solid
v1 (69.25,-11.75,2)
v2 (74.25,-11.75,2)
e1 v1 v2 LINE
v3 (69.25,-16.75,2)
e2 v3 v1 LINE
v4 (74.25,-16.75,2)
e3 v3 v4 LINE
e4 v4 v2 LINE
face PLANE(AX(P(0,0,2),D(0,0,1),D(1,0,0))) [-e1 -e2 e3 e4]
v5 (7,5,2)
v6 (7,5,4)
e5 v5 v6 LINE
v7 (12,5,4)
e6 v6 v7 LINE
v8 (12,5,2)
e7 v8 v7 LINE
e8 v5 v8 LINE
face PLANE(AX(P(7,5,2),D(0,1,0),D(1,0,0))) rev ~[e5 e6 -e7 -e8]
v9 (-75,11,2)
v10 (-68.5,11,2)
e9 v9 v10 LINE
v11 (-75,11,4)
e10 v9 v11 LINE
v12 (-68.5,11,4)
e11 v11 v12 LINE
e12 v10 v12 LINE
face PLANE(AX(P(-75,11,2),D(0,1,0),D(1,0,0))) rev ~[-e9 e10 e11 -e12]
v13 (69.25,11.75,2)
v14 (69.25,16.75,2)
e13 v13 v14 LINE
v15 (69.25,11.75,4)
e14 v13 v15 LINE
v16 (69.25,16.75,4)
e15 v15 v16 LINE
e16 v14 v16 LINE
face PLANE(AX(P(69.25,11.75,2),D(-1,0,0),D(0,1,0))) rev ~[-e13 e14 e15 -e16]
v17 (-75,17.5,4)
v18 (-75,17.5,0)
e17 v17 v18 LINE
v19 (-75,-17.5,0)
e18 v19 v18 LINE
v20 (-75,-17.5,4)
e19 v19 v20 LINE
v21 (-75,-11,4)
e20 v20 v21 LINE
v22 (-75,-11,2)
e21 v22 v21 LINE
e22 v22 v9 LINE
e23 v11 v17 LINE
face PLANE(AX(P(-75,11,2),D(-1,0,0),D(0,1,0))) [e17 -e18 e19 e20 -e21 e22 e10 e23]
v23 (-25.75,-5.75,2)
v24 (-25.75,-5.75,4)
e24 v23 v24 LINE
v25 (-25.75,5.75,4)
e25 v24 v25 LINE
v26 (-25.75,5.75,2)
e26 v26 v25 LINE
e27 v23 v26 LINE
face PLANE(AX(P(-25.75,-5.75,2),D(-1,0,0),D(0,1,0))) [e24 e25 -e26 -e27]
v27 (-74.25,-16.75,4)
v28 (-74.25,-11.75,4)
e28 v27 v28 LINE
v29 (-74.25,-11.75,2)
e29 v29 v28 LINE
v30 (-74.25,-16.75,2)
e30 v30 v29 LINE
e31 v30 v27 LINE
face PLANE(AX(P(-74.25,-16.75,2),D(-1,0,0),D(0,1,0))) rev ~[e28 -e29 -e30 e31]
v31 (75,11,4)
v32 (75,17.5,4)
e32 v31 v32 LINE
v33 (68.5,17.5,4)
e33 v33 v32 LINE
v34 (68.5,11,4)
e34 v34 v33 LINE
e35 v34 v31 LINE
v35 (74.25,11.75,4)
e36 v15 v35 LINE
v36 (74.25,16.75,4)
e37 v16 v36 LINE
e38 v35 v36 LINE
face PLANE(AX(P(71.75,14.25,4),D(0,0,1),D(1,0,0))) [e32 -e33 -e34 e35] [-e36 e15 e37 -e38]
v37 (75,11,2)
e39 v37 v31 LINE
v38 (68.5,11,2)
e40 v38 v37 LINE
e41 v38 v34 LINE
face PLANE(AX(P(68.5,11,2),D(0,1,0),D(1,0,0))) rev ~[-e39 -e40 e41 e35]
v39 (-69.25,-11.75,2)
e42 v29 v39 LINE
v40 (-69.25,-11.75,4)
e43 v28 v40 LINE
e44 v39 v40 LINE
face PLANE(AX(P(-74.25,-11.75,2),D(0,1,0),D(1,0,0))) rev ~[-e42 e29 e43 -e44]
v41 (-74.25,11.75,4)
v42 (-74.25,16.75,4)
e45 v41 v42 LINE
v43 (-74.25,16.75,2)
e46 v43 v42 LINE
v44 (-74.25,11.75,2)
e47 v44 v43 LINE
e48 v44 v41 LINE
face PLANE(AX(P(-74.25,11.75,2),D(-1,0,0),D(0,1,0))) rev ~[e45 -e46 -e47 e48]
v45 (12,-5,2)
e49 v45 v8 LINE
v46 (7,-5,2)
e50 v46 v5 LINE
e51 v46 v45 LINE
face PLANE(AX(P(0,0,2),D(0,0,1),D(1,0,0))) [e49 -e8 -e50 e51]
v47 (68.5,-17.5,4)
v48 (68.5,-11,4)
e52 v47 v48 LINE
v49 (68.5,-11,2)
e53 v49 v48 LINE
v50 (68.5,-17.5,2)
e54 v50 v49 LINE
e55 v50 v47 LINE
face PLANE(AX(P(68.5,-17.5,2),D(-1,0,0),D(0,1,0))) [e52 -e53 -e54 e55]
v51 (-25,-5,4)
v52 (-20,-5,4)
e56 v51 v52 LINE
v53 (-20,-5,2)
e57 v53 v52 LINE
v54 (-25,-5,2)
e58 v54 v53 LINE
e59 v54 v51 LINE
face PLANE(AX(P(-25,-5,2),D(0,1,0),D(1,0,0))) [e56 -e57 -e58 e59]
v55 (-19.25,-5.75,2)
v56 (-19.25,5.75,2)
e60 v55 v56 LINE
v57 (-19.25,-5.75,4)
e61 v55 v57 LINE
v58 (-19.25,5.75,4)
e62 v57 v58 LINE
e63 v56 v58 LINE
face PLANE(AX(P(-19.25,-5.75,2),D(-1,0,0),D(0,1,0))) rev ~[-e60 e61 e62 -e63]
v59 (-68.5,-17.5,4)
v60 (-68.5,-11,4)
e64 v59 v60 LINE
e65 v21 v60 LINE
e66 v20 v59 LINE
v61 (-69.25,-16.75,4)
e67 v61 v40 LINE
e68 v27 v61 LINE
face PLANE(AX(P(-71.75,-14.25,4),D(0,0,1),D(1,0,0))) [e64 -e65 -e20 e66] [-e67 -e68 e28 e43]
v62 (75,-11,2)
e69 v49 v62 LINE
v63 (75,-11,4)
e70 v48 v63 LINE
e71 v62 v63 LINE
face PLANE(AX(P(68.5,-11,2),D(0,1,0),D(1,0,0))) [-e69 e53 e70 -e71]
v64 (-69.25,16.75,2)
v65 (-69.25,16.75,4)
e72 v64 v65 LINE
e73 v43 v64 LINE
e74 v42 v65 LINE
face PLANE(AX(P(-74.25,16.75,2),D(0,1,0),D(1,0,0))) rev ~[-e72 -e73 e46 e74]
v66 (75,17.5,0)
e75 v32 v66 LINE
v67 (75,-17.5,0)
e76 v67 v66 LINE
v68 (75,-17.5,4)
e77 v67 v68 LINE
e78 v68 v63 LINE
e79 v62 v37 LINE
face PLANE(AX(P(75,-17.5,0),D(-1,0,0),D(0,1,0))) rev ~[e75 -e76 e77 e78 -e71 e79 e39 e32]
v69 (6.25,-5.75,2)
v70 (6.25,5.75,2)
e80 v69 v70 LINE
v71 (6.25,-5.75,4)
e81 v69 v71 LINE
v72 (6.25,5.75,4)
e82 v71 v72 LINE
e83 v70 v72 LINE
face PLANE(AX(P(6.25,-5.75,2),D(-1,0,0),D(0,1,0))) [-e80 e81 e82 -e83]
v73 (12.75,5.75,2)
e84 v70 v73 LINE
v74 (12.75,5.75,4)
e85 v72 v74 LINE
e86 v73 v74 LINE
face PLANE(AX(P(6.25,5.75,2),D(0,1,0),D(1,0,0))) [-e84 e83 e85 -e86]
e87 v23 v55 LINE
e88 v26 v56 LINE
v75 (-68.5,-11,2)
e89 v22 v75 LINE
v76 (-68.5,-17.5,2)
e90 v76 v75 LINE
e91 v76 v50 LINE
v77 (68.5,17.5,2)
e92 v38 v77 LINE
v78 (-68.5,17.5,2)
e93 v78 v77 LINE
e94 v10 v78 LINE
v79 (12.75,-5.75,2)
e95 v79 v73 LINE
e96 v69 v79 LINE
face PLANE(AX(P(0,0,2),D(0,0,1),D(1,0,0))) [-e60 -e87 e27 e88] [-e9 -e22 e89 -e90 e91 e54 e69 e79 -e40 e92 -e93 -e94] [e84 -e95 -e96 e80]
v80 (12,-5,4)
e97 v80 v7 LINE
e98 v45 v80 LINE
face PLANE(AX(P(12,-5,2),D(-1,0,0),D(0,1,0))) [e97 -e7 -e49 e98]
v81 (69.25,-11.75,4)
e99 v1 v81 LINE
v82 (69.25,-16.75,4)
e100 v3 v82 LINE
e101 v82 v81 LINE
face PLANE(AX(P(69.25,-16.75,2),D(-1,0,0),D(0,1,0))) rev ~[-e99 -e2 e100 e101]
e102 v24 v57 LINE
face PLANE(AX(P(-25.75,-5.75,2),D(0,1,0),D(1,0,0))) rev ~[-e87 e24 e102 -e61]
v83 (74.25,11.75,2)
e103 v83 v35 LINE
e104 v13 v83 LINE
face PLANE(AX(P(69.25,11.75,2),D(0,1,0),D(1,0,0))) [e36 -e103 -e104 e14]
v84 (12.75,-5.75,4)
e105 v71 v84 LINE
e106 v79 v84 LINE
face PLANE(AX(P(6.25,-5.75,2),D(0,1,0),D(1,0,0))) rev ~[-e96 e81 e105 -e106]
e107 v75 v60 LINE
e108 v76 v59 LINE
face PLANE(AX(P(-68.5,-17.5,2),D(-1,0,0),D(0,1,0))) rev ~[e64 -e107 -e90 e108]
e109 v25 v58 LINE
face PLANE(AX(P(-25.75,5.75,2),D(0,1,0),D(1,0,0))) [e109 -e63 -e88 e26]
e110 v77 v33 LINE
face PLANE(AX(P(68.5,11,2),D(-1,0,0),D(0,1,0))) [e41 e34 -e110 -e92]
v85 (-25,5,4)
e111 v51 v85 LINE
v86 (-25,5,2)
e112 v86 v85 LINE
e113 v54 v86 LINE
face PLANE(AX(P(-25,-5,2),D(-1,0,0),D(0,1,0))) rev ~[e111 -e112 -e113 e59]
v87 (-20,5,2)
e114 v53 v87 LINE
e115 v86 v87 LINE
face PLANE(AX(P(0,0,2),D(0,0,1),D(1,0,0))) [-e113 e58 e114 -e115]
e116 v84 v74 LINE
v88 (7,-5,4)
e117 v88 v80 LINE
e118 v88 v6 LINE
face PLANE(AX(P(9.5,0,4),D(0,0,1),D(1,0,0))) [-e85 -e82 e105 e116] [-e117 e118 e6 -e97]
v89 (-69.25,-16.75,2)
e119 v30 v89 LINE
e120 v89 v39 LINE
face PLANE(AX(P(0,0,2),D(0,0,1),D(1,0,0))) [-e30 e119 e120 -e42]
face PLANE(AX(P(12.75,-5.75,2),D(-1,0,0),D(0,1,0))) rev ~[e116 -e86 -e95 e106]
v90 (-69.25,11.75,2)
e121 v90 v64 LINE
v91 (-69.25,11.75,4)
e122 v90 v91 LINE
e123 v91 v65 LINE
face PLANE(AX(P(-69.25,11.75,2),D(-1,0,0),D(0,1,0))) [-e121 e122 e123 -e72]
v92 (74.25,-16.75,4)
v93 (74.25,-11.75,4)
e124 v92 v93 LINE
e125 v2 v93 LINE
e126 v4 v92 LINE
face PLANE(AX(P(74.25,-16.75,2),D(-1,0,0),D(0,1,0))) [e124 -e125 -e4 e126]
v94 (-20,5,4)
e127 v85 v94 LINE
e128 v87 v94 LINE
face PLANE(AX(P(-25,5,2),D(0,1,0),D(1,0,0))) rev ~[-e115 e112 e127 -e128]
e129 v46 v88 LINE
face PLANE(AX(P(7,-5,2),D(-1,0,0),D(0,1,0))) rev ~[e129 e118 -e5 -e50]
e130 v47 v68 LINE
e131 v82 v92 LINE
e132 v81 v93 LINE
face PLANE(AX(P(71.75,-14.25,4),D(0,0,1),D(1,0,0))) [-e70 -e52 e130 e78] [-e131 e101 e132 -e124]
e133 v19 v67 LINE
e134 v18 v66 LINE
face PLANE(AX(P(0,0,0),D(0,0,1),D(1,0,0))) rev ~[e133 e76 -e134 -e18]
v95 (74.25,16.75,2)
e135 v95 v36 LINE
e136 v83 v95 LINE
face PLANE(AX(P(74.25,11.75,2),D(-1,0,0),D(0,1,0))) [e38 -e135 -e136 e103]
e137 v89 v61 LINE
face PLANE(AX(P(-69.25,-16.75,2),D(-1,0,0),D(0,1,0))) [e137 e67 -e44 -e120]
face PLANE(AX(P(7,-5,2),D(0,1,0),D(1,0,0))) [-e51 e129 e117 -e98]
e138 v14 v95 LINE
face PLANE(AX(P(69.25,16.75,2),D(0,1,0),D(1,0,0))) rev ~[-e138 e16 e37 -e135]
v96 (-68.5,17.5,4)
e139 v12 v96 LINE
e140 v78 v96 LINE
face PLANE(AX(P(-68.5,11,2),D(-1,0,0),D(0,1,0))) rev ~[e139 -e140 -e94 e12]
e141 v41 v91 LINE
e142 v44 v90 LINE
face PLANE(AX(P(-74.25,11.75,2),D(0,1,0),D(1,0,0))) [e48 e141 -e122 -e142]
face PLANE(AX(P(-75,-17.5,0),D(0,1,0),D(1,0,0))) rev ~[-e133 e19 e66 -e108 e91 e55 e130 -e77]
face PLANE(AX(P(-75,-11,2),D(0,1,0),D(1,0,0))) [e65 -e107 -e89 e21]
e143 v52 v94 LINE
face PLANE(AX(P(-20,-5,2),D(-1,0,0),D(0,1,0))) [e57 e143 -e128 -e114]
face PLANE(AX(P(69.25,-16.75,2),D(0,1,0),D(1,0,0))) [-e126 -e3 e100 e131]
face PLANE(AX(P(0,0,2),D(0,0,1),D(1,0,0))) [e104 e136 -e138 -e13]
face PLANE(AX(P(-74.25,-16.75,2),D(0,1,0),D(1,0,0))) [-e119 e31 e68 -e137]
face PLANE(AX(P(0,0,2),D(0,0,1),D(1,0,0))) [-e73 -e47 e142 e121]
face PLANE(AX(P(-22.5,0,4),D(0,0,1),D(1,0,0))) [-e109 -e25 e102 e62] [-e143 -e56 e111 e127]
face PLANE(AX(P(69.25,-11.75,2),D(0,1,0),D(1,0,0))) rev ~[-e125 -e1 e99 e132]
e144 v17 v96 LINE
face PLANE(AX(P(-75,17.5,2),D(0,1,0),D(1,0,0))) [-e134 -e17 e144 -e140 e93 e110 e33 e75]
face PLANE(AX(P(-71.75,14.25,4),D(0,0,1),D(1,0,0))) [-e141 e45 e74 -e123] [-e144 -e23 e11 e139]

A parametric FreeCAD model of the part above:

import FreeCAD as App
import Part
import Sketcher
Q = App.Units.Quantity


def add_polygon(sketch, points):
    """Adds a closed chain of lines whose ends are joined by coincident constraints."""
    first, n = sketch.GeometryCount, len(points)
    for a, b in zip(points, points[1:] + points[:1]):
        sketch.addGeometry(Part.LineSegment(App.Vector(*a, 0), App.Vector(*b, 0)), False)
    for i in range(n):
        sketch.addConstraint(Sketcher.Constraint("Coincident", first + i, 2, first + (i + 1) % n, 1))

doc = App.newDocument("Part")
body = doc.addObject("PartDesign::Body", "Body")

# Sketch on XY plane
sketch1 = body.newObject("Sketcher::SketchObject", "Sketch")
sketch1.AttachmentSupport = (doc.getObject("XY_Plane"), [""])
sketch1.MapMode = "FlatFace"
add_polygon(sketch1, [(-75, 18), (-75, -18), (75, -18), (75, 18)])  # lines 0-3
sketch1.addConstraint([
    Sketcher.Constraint("Vertical", 0),
    Sketcher.Constraint("Horizontal", 1),
    Sketcher.Constraint("Vertical", 2),
    Sketcher.Constraint("Horizontal", 3),
    Sketcher.Constraint("Symmetric", 0, 2, 2, 2, -1, 1),
    Sketcher.Constraint("DistanceX", 1, 1, 1, 2, Q("150 mm")),
    Sketcher.Constraint("DistanceY", 0, 2, 0, 1, Q("35 mm")),
])
pad1 = body.newObject("PartDesign::Pad", "Pad")
pad1.Profile = sketch1
pad1.Length = 2

# Sketch on XY plane
sketch2 = body.newObject("Sketcher::SketchObject", "Sketch001")
sketch2.AttachmentSupport = (doc.getObject("XY_Plane"), [""])
sketch2.MapMode = "FlatFace"
sketch2.AttachmentOffset = App.Placement(App.Vector(0, 0, 2), App.Rotation())
add_polygon(sketch2, [(-26, 6), (-26, -6), (-19, -6), (-19, 6)])  # lines 0-3
add_polygon(sketch2, [(-20, -5), (-25, -5), (-25, 5), (-20, 5)])  # lines 4-7
add_polygon(sketch2, [(6, 6), (6, -6), (13, -6), (13, 6)])  # lines 8-11
add_polygon(sketch2, [(12, -5), (7, -5), (7, 5), (12, 5)])  # lines 12-15
sketch2.addConstraint([
    Sketcher.Constraint("Vertical", 0),
    Sketcher.Constraint("Horizontal", 1),
    Sketcher.Constraint("Vertical", 2),
    Sketcher.Constraint("Horizontal", 3),
    Sketcher.Constraint("Horizontal", 4),
    Sketcher.Constraint("Vertical", 5),
    Sketcher.Constraint("Horizontal", 6),
    Sketcher.Constraint("Vertical", 7),
    Sketcher.Constraint("Vertical", 8),
    Sketcher.Constraint("Horizontal", 9),
    Sketcher.Constraint("Vertical", 10),
    Sketcher.Constraint("Horizontal", 11),
    Sketcher.Constraint("Horizontal", 12),
    Sketcher.Constraint("Vertical", 13),
    Sketcher.Constraint("Horizontal", 14),
    Sketcher.Constraint("Vertical", 15),
    Sketcher.Constraint("Horizontal", 1, 2, 8, 2),
    Sketcher.Constraint("Horizontal", 3, 2, 10, 2),
    Sketcher.Constraint("Horizontal", 7, 2, 12, 2),
    Sketcher.Constraint("Horizontal", 6, 2, 13, 2),
    Sketcher.Constraint("Equal", 3, 9),
    Sketcher.Constraint("Equal", 6, 12),
    Sketcher.Constraint("DistanceX", 4, 2, 4, 1, Q("5 mm")),
    Sketcher.Constraint("DistanceY", 5, 1, 5, 2, Q("10 mm")),
    Sketcher.Constraint("DistanceX", 1, 1, 1, 2, Q("6.5 mm")),
    Sketcher.Constraint("DistanceY", 0, 2, 0, 1, Q("11.5 mm")),
    Sketcher.Constraint("DistanceX", 4, 2, -1, 1, Q("25 mm")),
    Sketcher.Constraint("DistanceY", 4, 2, -1, 1, Q("5 mm")),
    Sketcher.Constraint("DistanceX", -1, 1, 12, 2, Q("7 mm")),
    Sketcher.Constraint("DistanceX", 1, 2, 9, 2, Q("32 mm")),
    Sketcher.Constraint("DistanceX", 0, 2, -1, 1, Q("25.75 mm")),
    Sketcher.Constraint("DistanceY", 0, 2, -1, 1, Q("5.75 mm")),
])
pad2 = body.newObject("PartDesign::Pad", "Pad001")
pad2.Profile = sketch2
pad2.Length = 2

# Sketch on XY plane
sketch3 = body.newObject("Sketcher::SketchObject", "Sketch002")
sketch3.AttachmentSupport = (doc.getObject("XY_Plane"), [""])
sketch3.MapMode = "FlatFace"
sketch3.AttachmentOffset = App.Placement(App.Vector(0, 0, 2), App.Rotation())
add_polygon(sketch3, [(-75, 18), (-75, 11), (-68, 11), (-68, 18)])  # lines 0-3
add_polygon(sketch3, [(-69, 12), (-74, 12), (-74, 17), (-69, 17)])  # lines 4-7
add_polygon(sketch3, [(68, 18), (68, 11), (75, 11), (75, 18)])  # lines 8-11
add_polygon(sketch3, [(74, 12), (69, 12), (69, 17), (74, 17)])  # lines 12-15
add_polygon(sketch3, [(-75, -11), (-75, -18), (-68, -18), (-68, -11)])  # lines 16-19
add_polygon(sketch3, [(-69, -17), (-74, -17), (-74, -12), (-69, -12)])  # lines 20-23
add_polygon(sketch3, [(68, -11), (68, -18), (75, -18), (75, -11)])  # lines 24-27
add_polygon(sketch3, [(74, -17), (69, -17), (69, -12), (74, -12)])  # lines 28-31
sketch3.addConstraint([
    Sketcher.Constraint("Vertical", 0),
    Sketcher.Constraint("Horizontal", 1),
    Sketcher.Constraint("Vertical", 2),
    Sketcher.Constraint("Horizontal", 3),
    Sketcher.Constraint("Horizontal", 4),
    Sketcher.Constraint("Vertical", 5),
    Sketcher.Constraint("Horizontal", 6),
    Sketcher.Constraint("Vertical", 7),
    Sketcher.Constraint("Vertical", 8),
    Sketcher.Constraint("Horizontal", 9),
    Sketcher.Constraint("Vertical", 10),
    Sketcher.Constraint("Horizontal", 11),
    Sketcher.Constraint("Horizontal", 12),
    Sketcher.Constraint("Vertical", 13),
    Sketcher.Constraint("Horizontal", 14),
    Sketcher.Constraint("Vertical", 15),
    Sketcher.Constraint("Vertical", 16),
    Sketcher.Constraint("Horizontal", 17),
    Sketcher.Constraint("Vertical", 18),
    Sketcher.Constraint("Horizontal", 19),
    Sketcher.Constraint("Horizontal", 20),
    Sketcher.Constraint("Vertical", 21),
    Sketcher.Constraint("Horizontal", 22),
    Sketcher.Constraint("Vertical", 23),
    Sketcher.Constraint("Vertical", 24),
    Sketcher.Constraint("Horizontal", 25),
    Sketcher.Constraint("Vertical", 26),
    Sketcher.Constraint("Horizontal", 27),
    Sketcher.Constraint("Horizontal", 28),
    Sketcher.Constraint("Vertical", 29),
    Sketcher.Constraint("Horizontal", 30),
    Sketcher.Constraint("Vertical", 31),
    Sketcher.Constraint("Symmetric", 10, 2, 16, 2, -1, 1),
    Sketcher.Constraint("Symmetric", 8, 2, 18, 2, -1, 1),
    Sketcher.Constraint("Symmetric", 14, 2, 20, 2, -1, 1),
    Sketcher.Constraint("Symmetric", 12, 2, 22, 2, -1, 1),
    Sketcher.Constraint("Symmetric", 2, 2, 24, 2, -1, 1),
    Sketcher.Constraint("Symmetric", 0, 2, 26, 2, -1, 1),
    Sketcher.Constraint("Symmetric", 6, 2, 28, 2, -1, 1),
    Sketcher.Constraint("Symmetric", 4, 2, 30, 2, -1, 1),
    Sketcher.Constraint("Symmetric", 1, 2, 8, 2, -2),
    Sketcher.Constraint("Symmetric", 3, 2, 10, 2, -2),
    Sketcher.Constraint("Symmetric", 7, 2, 12, 2, -2),
    Sketcher.Constraint("Symmetric", 5, 2, 14, 2, -2),
    Sketcher.Constraint("Equal", 27, 0),
    Sketcher.Constraint("Equal", 30, 5),
    Sketcher.Constraint("DistanceX", 4, 2, 4, 1, Q("5 mm")),
    Sketcher.Constraint("DistanceX", 1, 1, 1, 2, Q("6.5 mm")),
    Sketcher.Constraint("DistanceX", 0, 2, -1, 1, Q("75 mm")),
    Sketcher.Constraint("DistanceY", -1, 1, 0, 2, Q("11 mm")),
    Sketcher.Constraint("DistanceX", 4, 2, -1, 1, Q("74.25 mm")),
    Sketcher.Constraint("DistanceY", -1, 1, 4, 2, Q("11.75 mm")),
])
pad3 = body.newObject("PartDesign::Pad", "Pad002")
pad3.Profile = sketch3
pad3.Length = 2

doc.recompute()
